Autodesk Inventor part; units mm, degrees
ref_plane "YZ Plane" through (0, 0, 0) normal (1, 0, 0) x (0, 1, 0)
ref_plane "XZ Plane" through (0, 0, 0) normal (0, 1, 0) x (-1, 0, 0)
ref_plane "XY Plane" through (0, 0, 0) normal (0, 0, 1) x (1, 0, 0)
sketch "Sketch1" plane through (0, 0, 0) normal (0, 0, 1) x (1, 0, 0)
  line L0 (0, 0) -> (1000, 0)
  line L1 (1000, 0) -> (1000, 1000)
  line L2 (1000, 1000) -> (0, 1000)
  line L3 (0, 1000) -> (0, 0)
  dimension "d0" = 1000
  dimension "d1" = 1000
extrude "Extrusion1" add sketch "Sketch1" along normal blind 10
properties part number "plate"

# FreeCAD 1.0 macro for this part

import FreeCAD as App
import Part
import Sketcher
from FreeCAD import Vector
Q = App.Units.Quantity

doc = App.newDocument("Part")
params = doc.addObject("Spreadsheet::Sheet", "Params")
for row, (alias, value) in enumerate([
    ("sketch1_width", "1000 mm"),
    ("pad1_length", "10 mm"),
], start=1):
    params.set(f"A{row}", alias)
    params.set(f"B{row}", "=" + value)
    params.setAlias(f"B{row}", alias)

body = doc.addObject("PartDesign::Body", "Body")

# Sketch on XY plane
sketch1 = body.newObject("Sketcher::SketchObject", "Sketch")
sketch1.AttachmentSupport = (doc.getObject("XY_Plane"), [""])
sketch1.MapMode = "FlatFace"
sketch1.addGeometry([
    Part.LineSegment(Vector(0, 1000, 0), Vector(0, 0, 0)),
    Part.LineSegment(Vector(0, 0, 0), Vector(1000, 0, 0)),
    Part.LineSegment(Vector(1000, 0, 0), Vector(1000, 1000, 0)),
    Part.LineSegment(Vector(1000, 1000, 0), Vector(0, 1000, 0)),
], False)
sketch1.addConstraint([
    Sketcher.Constraint("Coincident", 0, 2, 1, 1),
    Sketcher.Constraint("Coincident", 1, 2, 2, 1),
    Sketcher.Constraint("Coincident", 2, 2, 3, 1),
    Sketcher.Constraint("Coincident", 3, 2, 0, 1),
    Sketcher.Constraint("Vertical", 0),
    Sketcher.Constraint("Horizontal", 1),
    Sketcher.Constraint("Vertical", 2),
    Sketcher.Constraint("Horizontal", 3),
    Sketcher.Constraint("Coincident", 0, 2, -1, 1),
    Sketcher.Constraint("Equal", 3, 0),
    Sketcher.Constraint("DistanceX", 1, 1, 1, 2, Q("1000 mm")),
])
sketch1.setExpression("Constraints[10]", "Params.sketch1_width")
pad1 = body.newObject("PartDesign::Pad", "Pad")
pad1.Profile = sketch1
pad1.setExpression("Length", "Params.pad1_length")

doc.recompute()
